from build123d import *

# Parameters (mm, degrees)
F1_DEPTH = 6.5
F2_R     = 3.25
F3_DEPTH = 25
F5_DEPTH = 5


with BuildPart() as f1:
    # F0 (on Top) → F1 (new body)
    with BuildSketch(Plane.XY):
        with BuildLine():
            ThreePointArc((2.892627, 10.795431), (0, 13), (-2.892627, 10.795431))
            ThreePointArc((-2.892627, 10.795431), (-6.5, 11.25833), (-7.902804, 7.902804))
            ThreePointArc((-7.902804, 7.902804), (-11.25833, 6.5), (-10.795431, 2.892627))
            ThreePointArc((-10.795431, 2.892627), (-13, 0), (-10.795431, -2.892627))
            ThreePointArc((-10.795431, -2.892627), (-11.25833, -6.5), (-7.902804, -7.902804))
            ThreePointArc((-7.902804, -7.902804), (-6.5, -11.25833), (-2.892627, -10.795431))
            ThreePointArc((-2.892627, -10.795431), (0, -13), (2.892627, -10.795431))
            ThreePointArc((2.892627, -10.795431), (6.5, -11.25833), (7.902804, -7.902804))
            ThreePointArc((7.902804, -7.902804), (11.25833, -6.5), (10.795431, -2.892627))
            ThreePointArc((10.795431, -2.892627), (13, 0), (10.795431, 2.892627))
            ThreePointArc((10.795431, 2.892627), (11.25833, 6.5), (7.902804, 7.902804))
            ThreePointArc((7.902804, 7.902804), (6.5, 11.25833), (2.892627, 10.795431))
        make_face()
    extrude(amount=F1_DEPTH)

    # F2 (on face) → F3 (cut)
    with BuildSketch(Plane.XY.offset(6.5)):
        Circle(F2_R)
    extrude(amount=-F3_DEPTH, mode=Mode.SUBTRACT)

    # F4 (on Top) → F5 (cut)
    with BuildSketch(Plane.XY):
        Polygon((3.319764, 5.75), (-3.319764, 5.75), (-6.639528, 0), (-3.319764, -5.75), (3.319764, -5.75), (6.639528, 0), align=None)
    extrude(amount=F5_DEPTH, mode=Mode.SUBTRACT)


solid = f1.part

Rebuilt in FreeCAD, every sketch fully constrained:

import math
import FreeCAD as App
import Part
import Sketcher
Q = App.Units.Quantity

doc = App.newDocument("Part")
body = doc.addObject("PartDesign::Body", "Body")

# Sketch on XY plane
sketch1 = doc.addObject("Sketcher::SketchObject", "Sketch")
body.addObject(sketch1)
sketch1.AttachmentSupport = (doc.XY_Plane, [""])
sketch1.MapMode = "FlatFace"
sketch1.addGeometry(Part.ArcOfCircle(Part.Circle(App.Vector(0, 10, 0), App.Vector(0, 0, 1), 3), math.radians(15), math.radians(165)), False)
sketch1.addGeometry(Part.ArcOfCircle(Part.Circle(App.Vector(-5, 8.7, 0), App.Vector(0, 0, 1), 3), math.radians(45), math.radians(195)), False)
sketch1.addGeometry(Part.ArcOfCircle(Part.Circle(App.Vector(-8.7, 5, 0), App.Vector(0, 0, 1), 3), math.radians(75), math.radians(225)), False)
sketch1.addGeometry(Part.ArcOfCircle(Part.Circle(App.Vector(-10, 0, 0), App.Vector(0, 0, 1), 3), math.radians(105), math.radians(255)), False)
sketch1.addGeometry(Part.ArcOfCircle(Part.Circle(App.Vector(-8.7, -5, 0), App.Vector(0, 0, 1), 3), math.radians(135), math.radians(285)), False)
sketch1.addGeometry(Part.ArcOfCircle(Part.Circle(App.Vector(-5, -8.7, 0), App.Vector(0, 0, 1), 3), math.radians(165), math.radians(315)), False)
sketch1.addGeometry(Part.ArcOfCircle(Part.Circle(App.Vector(0, -10, 0), App.Vector(0, 0, 1), 3), math.radians(-165), math.radians(-15)), False)
sketch1.addGeometry(Part.ArcOfCircle(Part.Circle(App.Vector(5, -8.7, 0), App.Vector(0, 0, 1), 3), math.radians(-135), math.radians(15)), False)
sketch1.addGeometry(Part.ArcOfCircle(Part.Circle(App.Vector(8.7, -5, 0), App.Vector(0, 0, 1), 3), math.radians(-105), math.radians(45)), False)
sketch1.addGeometry(Part.ArcOfCircle(Part.Circle(App.Vector(10, 0, 0), App.Vector(0, 0, 1), 3), math.radians(-75), math.radians(75)), False)
sketch1.addGeometry(Part.ArcOfCircle(Part.Circle(App.Vector(8.7, 5, 0), App.Vector(0, 0, 1), 3), math.radians(-45), math.radians(105)), False)
sketch1.addGeometry(Part.ArcOfCircle(Part.Circle(App.Vector(5, 8.7, 0), App.Vector(0, 0, 1), 3), math.radians(-15), math.radians(135)), False)
sketch1.addConstraint(Sketcher.Constraint("Coincident", 0, 2, 1, 1))
sketch1.addConstraint(Sketcher.Constraint("Coincident", 1, 2, 2, 1))
sketch1.addConstraint(Sketcher.Constraint("Coincident", 2, 2, 3, 1))
sketch1.addConstraint(Sketcher.Constraint("Coincident", 3, 2, 4, 1))
sketch1.addConstraint(Sketcher.Constraint("Coincident", 4, 2, 5, 1))
sketch1.addConstraint(Sketcher.Constraint("Coincident", 5, 2, 6, 1))
sketch1.addConstraint(Sketcher.Constraint("Coincident", 6, 2, 7, 1))
sketch1.addConstraint(Sketcher.Constraint("Coincident", 7, 2, 8, 1))
sketch1.addConstraint(Sketcher.Constraint("Coincident", 8, 2, 9, 1))
sketch1.addConstraint(Sketcher.Constraint("Coincident", 9, 2, 10, 1))
sketch1.addConstraint(Sketcher.Constraint("Coincident", 10, 2, 11, 1))
sketch1.addConstraint(Sketcher.Constraint("Coincident", 11, 2, 0, 1))
sketch1.addConstraint(Sketcher.Constraint("Equal", 0, 1))
sketch1.addConstraint(Sketcher.Constraint("Equal", 1, 2))
sketch1.addConstraint(Sketcher.Constraint("Equal", 2, 3))
sketch1.addConstraint(Sketcher.Constraint("Equal", 3, 4))
sketch1.addConstraint(Sketcher.Constraint("Equal", 4, 5))
sketch1.addConstraint(Sketcher.Constraint("Equal", 5, 6))
sketch1.addConstraint(Sketcher.Constraint("Equal", 6, 7))
sketch1.addConstraint(Sketcher.Constraint("Equal", 7, 8))
sketch1.addConstraint(Sketcher.Constraint("Equal", 8, 9))
sketch1.addConstraint(Sketcher.Constraint("Equal", 9, 10))
sketch1.addConstraint(Sketcher.Constraint("Equal", 10, 11))
sketch1.addConstraint(Sketcher.Constraint("Symmetric", 0, 3, 6, 3, -1, 1))
sketch1.addConstraint(Sketcher.Constraint("Symmetric", 1, 3, 7, 3, -1, 1))
sketch1.addConstraint(Sketcher.Constraint("Symmetric", 2, 3, 8, 3, -1, 1))
sketch1.addConstraint(Sketcher.Constraint("Symmetric", 3, 3, 9, 3, -1, 1))
sketch1.addConstraint(Sketcher.Constraint("Symmetric", 4, 3, 10, 3, -1, 1))
sketch1.addConstraint(Sketcher.Constraint("Symmetric", 5, 3, 11, 3, -1, 1))
sketch1.addConstraint(Sketcher.Constraint("Symmetric", 5, 3, 7, 3, -2))
sketch1.addConstraint(Sketcher.Constraint("Symmetric", 4, 3, 8, 3, -2))
sketch1.addConstraint(Sketcher.Constraint("PointOnObject", 0, 3, -2))
sketch1.addConstraint(Sketcher.Constraint("PointOnObject", 3, 3, -1))
sketch1.addConstraint(Sketcher.Constraint("Radius", 0, 3.0))
sketch1.addConstraint(Sketcher.Constraint("DistanceY", -1, 1, 0, 3, 10.0))
sketch1.addConstraint(Sketcher.Constraint("DistanceX", 1, 3, -1, 1, 5.0))
sketch1.addConstraint(Sketcher.Constraint("DistanceY", -1, 1, 2, 3, 5.0))
sketch1.addConstraint(Sketcher.Constraint("DistanceX", 3, 3, -1, 1, 10.0))
sketch1.addConstraint(Sketcher.Constraint("DistanceY", -1, 1, 0, 2, 10.795431))
sketch1.addConstraint(Sketcher.Constraint("DistanceX", 2, 2, -1, 1, 10.795431))
pad1 = doc.addObject("PartDesign::Pad", "Pad")
body.addObject(pad1)
pad1.Profile = sketch1
pad1.Length = 6.5

# Sketch on XY plane
sketch2 = doc.addObject("Sketcher::SketchObject", "Sketch001")
body.addObject(sketch2)
sketch2.AttachmentSupport = (doc.XY_Plane, [""])
sketch2.MapMode = "FlatFace"
sketch2.AttachmentOffset = App.Placement(App.Vector(0, 0, 6.5), App.Rotation())
sketch2.addGeometry(Part.Circle(App.Vector(0, 0, 0), App.Vector(0, 0, 1), 3.2), False)
sketch2.addConstraint(Sketcher.Constraint("Coincident", 0, 3, -1, 1))
sketch2.addConstraint(Sketcher.Constraint("Diameter", 0, 6.5))
pocket1 = doc.addObject("PartDesign::Pocket", "Pocket")
body.addObject(pocket1)
pocket1.Profile = sketch2
pocket1.Length = 25

# Sketch on XY plane
sketch3 = doc.addObject("Sketcher::SketchObject", "Sketch002")
body.addObject(sketch3)
sketch3.AttachmentSupport = (doc.XY_Plane, [""])
sketch3.MapMode = "FlatFace"
sketch3.addGeometry(Part.LineSegment(App.Vector(3, 6, 0), App.Vector(-3, 6, 0)), False)
sketch3.addGeometry(Part.LineSegment(App.Vector(-3, 6, 0), App.Vector(-7, 0, 0)), False)
sketch3.addGeometry(Part.LineSegment(App.Vector(-7, 0, 0), App.Vector(-3, -6, 0)), False)
sketch3.addGeometry(Part.LineSegment(App.Vector(-3, -6, 0), App.Vector(3, -6, 0)), False)
sketch3.addGeometry(Part.LineSegment(App.Vector(3, -6, 0), App.Vector(7, 0, 0)), False)
sketch3.addGeometry(Part.LineSegment(App.Vector(7, 0, 0), App.Vector(3, 6, 0)), False)
sketch3.addConstraint(Sketcher.Constraint("Coincident", 0, 2, 1, 1))
sketch3.addConstraint(Sketcher.Constraint("Coincident", 1, 2, 2, 1))
sketch3.addConstraint(Sketcher.Constraint("Coincident", 2, 2, 3, 1))
sketch3.addConstraint(Sketcher.Constraint("Coincident", 3, 2, 4, 1))
sketch3.addConstraint(Sketcher.Constraint("Coincident", 4, 2, 5, 1))
sketch3.addConstraint(Sketcher.Constraint("Coincident", 5, 2, 0, 1))
sketch3.addConstraint(Sketcher.Constraint("Horizontal", 0))
sketch3.addConstraint(Sketcher.Constraint("Horizontal", 3))
sketch3.addConstraint(Sketcher.Constraint("Symmetric", 0, 2, 3, 2, -1, 1))
sketch3.addConstraint(Sketcher.Constraint("Symmetric", 1, 2, 4, 2, -1, 1))
sketch3.addConstraint(Sketcher.Constraint("PointOnObject", 1, 2, -1))
sketch3.addConstraint(Sketcher.Constraint("Parallel", 2, 5))
sketch3.addConstraint(Sketcher.Constraint("Vertical", 0, 2, 2, 2))
sketch3.addConstraint(Sketcher.Constraint("Angle", 1, Q("-120 deg")))
sketch3.addConstraint(Sketcher.Constraint("DistanceY", 2, 2, 0, 2, 11.5))
sketch3.addConstraint(Sketcher.Constraint("DistanceX", 0, 2, 0, 1, 6.639528))
pocket2 = doc.addObject("PartDesign::Pocket", "Pocket001")
body.addObject(pocket2)
pocket2.Profile = sketch3
pocket2.Length = 5
pocket2.Reversed = True

doc.recompute()
